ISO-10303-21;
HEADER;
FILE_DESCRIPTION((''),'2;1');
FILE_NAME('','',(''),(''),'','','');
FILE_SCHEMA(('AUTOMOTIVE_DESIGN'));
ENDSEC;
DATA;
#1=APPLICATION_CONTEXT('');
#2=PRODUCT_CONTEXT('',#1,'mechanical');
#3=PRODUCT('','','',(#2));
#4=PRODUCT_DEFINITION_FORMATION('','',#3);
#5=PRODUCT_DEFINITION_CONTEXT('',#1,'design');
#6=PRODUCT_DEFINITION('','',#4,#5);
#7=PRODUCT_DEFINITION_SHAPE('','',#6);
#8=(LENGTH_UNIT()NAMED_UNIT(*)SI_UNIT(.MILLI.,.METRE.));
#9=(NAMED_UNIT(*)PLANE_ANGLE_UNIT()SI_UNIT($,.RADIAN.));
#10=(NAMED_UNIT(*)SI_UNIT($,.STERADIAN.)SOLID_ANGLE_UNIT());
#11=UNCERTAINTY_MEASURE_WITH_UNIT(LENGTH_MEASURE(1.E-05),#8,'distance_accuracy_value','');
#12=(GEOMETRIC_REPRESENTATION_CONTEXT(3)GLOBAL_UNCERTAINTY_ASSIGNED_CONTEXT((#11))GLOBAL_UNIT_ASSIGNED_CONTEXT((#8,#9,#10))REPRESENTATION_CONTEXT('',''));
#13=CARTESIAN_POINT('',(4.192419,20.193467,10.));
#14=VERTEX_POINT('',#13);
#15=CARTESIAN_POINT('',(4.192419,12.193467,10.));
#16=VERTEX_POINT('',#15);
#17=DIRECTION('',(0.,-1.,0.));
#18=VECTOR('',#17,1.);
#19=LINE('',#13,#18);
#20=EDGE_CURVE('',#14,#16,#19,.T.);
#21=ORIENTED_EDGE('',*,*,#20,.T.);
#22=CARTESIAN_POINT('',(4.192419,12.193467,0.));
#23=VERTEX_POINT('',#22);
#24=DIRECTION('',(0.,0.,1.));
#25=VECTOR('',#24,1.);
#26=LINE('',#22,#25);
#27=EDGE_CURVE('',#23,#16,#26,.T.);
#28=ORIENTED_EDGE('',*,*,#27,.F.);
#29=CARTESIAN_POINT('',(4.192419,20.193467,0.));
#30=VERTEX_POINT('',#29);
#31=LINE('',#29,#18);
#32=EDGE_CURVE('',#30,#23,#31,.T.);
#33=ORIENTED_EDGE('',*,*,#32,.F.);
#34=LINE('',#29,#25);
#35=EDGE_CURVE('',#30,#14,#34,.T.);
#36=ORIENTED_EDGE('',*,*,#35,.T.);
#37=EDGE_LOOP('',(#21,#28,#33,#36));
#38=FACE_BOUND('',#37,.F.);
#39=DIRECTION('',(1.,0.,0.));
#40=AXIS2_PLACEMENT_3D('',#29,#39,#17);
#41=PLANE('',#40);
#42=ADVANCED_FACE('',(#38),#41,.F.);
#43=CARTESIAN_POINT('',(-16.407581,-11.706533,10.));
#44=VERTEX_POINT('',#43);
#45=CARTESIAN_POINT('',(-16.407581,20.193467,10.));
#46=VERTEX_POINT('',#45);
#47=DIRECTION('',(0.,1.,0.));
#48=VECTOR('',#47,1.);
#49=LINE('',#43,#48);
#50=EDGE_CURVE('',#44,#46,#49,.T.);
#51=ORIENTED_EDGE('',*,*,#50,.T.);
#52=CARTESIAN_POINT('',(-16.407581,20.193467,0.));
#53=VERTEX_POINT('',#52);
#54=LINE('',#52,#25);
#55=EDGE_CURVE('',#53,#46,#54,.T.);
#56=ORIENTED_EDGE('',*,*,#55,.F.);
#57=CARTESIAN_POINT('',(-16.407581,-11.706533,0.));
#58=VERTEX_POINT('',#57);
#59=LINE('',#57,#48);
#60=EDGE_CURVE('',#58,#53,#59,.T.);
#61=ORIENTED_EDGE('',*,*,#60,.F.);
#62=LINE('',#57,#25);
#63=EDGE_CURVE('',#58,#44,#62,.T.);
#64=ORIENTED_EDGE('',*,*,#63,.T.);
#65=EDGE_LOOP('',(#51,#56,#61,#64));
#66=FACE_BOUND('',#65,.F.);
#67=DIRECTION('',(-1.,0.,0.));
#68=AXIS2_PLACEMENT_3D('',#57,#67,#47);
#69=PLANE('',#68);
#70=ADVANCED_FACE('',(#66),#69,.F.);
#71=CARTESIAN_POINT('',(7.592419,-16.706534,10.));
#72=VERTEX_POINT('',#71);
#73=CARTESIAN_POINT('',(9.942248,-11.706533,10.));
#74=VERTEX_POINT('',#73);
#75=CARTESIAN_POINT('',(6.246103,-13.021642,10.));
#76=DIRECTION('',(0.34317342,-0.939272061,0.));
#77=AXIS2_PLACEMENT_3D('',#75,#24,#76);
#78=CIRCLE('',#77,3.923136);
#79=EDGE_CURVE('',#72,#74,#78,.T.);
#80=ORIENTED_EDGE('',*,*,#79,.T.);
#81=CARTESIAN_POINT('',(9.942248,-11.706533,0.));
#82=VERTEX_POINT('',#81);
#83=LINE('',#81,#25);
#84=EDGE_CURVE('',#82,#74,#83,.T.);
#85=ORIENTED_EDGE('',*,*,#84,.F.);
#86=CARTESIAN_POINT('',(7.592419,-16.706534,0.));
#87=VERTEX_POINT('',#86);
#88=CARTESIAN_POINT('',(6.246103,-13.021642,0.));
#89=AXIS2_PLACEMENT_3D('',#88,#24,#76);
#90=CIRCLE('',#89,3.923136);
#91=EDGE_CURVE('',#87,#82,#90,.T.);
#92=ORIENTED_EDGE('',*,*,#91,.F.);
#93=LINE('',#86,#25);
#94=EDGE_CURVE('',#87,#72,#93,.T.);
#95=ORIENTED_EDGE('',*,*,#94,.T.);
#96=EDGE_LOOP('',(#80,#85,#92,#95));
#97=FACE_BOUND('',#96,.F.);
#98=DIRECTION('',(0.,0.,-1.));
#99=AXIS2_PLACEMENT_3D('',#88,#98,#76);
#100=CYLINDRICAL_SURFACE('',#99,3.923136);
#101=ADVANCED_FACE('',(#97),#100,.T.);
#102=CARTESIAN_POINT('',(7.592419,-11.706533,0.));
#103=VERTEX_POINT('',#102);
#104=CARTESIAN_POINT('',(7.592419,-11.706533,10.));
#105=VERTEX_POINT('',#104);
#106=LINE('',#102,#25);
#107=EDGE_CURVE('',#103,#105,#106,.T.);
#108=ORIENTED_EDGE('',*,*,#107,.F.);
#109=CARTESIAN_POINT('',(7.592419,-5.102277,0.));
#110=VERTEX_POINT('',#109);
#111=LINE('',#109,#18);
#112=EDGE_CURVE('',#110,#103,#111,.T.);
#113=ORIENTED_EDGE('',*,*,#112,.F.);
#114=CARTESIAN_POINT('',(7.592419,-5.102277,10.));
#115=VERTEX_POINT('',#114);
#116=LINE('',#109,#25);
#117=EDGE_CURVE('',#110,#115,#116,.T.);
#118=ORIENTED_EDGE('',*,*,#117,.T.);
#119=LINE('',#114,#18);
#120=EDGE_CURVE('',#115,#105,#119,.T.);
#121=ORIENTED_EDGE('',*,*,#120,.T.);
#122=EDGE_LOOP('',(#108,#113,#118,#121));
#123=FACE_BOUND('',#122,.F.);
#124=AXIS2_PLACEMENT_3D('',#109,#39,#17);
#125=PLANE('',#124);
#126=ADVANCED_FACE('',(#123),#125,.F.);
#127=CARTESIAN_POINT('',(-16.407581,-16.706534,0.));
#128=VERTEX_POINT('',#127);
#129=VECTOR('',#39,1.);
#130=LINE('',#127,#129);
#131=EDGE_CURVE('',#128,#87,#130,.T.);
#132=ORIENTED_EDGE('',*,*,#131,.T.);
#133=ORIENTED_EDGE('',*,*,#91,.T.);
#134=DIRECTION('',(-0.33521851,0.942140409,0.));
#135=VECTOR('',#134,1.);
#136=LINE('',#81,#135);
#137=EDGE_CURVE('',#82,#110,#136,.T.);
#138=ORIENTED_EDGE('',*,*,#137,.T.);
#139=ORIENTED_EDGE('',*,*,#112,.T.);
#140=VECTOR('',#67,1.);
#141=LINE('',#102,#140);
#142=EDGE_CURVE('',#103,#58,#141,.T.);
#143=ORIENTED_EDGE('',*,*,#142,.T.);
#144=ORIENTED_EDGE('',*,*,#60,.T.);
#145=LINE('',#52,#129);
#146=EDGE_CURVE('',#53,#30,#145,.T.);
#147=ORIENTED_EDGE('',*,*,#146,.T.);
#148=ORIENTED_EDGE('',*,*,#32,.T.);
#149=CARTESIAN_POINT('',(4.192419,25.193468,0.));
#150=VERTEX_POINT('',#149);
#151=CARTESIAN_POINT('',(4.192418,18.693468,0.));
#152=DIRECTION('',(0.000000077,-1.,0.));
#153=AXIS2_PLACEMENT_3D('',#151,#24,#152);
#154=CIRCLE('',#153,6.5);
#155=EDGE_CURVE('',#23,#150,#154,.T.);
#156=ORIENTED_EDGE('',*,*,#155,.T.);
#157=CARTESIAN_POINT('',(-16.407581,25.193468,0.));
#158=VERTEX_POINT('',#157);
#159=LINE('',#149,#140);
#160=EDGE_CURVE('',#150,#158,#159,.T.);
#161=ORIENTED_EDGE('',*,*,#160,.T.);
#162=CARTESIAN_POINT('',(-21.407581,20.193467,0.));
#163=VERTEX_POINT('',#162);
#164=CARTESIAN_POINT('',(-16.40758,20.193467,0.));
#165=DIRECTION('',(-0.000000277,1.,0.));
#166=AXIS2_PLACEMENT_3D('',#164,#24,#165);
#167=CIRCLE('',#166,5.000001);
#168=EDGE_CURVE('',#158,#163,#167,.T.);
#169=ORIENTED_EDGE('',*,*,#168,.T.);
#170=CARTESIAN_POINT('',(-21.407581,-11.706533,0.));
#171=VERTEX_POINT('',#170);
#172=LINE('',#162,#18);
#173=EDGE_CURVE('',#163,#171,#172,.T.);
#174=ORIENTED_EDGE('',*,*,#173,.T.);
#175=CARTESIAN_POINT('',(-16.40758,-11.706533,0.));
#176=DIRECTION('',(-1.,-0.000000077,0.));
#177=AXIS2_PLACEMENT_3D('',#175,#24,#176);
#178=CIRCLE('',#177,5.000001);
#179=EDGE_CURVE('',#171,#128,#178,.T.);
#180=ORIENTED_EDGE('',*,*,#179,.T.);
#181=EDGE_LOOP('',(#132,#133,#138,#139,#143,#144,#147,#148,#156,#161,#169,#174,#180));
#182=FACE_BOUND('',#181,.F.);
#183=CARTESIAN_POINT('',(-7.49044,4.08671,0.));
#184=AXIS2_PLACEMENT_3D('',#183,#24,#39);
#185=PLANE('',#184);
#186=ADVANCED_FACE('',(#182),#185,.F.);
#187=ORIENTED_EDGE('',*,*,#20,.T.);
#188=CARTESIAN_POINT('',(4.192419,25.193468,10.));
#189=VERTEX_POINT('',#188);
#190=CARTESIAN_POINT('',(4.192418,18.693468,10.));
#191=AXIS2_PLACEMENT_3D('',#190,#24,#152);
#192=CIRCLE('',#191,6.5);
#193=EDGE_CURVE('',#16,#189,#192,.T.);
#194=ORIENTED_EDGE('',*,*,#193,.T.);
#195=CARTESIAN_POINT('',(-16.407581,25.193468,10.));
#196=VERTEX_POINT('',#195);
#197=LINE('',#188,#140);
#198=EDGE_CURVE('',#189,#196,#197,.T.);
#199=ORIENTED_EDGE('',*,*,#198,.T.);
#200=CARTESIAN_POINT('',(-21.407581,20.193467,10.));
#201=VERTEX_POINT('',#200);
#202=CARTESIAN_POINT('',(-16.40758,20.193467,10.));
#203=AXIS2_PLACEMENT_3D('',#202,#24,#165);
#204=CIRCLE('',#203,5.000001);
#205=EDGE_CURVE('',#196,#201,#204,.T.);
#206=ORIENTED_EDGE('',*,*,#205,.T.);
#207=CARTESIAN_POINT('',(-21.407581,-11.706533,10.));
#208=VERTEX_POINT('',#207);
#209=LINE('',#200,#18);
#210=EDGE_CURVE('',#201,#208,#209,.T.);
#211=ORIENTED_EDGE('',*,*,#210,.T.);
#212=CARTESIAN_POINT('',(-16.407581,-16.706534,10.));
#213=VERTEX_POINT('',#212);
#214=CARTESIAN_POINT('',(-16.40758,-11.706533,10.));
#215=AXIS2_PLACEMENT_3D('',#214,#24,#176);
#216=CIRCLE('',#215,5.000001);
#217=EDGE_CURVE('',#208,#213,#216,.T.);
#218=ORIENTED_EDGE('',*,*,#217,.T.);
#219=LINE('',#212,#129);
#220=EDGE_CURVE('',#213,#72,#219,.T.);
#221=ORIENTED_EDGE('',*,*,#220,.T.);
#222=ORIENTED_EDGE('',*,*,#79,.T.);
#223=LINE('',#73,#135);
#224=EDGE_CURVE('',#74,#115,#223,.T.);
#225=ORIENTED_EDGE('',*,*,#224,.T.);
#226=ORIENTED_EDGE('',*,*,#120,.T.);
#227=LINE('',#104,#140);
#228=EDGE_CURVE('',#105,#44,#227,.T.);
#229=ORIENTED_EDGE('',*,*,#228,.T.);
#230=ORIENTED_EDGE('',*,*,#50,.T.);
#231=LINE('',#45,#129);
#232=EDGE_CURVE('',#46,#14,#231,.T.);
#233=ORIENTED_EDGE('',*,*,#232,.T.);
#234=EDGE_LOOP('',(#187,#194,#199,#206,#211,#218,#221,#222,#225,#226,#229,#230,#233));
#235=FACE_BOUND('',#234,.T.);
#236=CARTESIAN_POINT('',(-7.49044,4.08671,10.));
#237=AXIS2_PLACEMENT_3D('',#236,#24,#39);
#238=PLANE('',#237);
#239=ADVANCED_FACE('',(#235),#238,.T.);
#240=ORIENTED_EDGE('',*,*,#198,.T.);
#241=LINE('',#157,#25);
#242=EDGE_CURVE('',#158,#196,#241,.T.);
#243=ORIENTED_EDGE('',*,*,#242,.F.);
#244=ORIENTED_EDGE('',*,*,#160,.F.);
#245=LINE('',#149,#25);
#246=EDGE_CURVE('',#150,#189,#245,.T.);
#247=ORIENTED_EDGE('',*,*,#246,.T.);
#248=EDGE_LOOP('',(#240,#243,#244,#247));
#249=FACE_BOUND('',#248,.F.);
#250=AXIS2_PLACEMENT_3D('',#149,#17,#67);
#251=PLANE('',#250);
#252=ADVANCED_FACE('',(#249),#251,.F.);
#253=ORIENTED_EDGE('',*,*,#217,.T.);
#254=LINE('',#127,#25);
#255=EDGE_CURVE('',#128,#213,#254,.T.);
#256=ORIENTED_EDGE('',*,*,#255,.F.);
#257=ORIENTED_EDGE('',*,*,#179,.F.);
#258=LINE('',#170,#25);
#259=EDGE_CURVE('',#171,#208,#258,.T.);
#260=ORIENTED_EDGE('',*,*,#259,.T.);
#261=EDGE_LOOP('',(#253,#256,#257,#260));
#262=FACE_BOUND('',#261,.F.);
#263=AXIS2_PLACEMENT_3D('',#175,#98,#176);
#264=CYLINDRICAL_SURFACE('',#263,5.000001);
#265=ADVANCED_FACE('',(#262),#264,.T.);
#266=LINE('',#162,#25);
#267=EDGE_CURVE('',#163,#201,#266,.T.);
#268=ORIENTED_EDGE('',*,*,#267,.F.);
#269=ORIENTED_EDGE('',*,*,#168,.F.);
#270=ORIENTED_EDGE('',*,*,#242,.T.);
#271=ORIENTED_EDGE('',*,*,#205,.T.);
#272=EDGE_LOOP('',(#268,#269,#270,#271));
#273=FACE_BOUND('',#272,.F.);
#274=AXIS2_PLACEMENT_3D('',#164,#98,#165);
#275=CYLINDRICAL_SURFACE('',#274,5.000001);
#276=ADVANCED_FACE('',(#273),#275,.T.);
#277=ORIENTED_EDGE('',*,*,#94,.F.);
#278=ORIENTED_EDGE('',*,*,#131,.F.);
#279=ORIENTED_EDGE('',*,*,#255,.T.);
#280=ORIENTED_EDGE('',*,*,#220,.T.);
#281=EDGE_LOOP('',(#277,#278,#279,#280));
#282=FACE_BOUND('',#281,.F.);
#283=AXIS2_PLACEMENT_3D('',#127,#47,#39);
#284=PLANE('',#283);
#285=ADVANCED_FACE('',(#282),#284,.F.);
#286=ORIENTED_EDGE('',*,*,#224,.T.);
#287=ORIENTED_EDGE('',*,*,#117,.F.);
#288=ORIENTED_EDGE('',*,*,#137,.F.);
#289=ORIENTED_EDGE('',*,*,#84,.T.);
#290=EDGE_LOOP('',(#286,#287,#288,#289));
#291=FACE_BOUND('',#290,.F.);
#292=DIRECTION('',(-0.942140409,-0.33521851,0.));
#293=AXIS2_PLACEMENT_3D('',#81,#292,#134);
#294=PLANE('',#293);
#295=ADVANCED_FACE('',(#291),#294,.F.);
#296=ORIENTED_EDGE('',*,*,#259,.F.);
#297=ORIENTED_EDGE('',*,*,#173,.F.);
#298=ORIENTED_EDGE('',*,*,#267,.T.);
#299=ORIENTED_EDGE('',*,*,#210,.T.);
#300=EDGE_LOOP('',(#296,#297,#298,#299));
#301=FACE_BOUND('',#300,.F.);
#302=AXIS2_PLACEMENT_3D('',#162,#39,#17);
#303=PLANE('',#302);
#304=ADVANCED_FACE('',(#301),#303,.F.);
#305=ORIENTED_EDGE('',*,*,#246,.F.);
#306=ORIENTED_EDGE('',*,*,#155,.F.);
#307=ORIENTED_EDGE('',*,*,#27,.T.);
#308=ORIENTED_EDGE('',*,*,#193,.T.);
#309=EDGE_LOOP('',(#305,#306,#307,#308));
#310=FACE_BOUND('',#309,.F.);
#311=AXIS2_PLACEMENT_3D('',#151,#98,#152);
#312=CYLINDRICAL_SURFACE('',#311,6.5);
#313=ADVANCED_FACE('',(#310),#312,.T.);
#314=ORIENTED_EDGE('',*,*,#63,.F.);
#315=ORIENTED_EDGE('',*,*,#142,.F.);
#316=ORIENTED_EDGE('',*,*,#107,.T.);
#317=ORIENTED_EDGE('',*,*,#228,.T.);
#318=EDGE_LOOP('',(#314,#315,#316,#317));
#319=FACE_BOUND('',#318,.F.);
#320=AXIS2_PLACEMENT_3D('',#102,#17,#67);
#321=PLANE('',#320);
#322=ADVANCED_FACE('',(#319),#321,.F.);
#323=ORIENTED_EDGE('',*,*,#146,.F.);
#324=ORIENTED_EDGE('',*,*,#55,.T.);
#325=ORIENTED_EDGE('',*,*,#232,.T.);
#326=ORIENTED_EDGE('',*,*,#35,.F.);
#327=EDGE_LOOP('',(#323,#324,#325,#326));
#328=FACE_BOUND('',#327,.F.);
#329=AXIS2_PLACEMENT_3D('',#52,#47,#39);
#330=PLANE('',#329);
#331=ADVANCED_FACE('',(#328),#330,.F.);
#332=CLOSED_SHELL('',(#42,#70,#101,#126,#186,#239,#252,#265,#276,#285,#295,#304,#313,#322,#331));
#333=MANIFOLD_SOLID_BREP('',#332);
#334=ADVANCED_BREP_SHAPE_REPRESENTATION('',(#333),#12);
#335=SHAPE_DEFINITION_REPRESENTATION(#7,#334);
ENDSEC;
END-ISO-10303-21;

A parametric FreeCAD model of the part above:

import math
import FreeCAD as App
import Part
import Sketcher
from FreeCAD import Vector

doc = App.newDocument("Part")
body = doc.addObject("PartDesign::Body", "Body")

sketch1 = body.newObject("Sketcher::SketchObject", "Sketch")
sketch1.AttachmentSupport = (doc.getObject("XY_Plane"), [""])
sketch1.MapMode = "FlatFace"
sketch1.addGeometry([
    Part.LineSegment(Vector(-16.4, 20.2, 0), Vector(4.2, 20.2, 0)),
    Part.LineSegment(Vector(4.2, 20.2, 0), Vector(4.2, 12.2, 0)),
    Part.ArcOfCircle(Part.Circle(Vector(4.2, 18.7, 0), Vector(0, 0, 1), 6.5), math.radians(-90), math.radians(90)),
    Part.LineSegment(Vector(4.2, 25.2, 0), Vector(-16.4, 25.2, 0)),
    Part.ArcOfCircle(Part.Circle(Vector(-16.4, 20.2, 0), Vector(0, 0, 1), 5), math.radians(90), math.radians(180)),
    Part.LineSegment(Vector(-21.4, 20.2, 0), Vector(-21.4, -11.7, 0)),
    Part.ArcOfCircle(Part.Circle(Vector(-16.4, -11.7, 0), Vector(0, 0, 1), 5), math.radians(-180), math.radians(-90)),
    Part.LineSegment(Vector(-16.4, -16.7, 0), Vector(7.6, -16.7, 0)),
    Part.ArcOfCircle(Part.Circle(Vector(6.2, -13, 0), Vector(0, 0, 1), 3.9), math.radians(-70), math.radians(20)),
    Part.LineSegment(Vector(9.9, -11.7, 0), Vector(7.6, -5.1, 0)),
    Part.LineSegment(Vector(7.6, -5.1, 0), Vector(7.6, -11.7, 0)),
    Part.LineSegment(Vector(7.6, -11.7, 0), Vector(-16.4, -11.7, 0)),
    Part.LineSegment(Vector(-16.4, -11.7, 0), Vector(-16.4, 20.2, 0)),
], False)
sketch1.addConstraint([
    Sketcher.Constraint("Coincident", 0, 2, 1, 1),
    Sketcher.Constraint("Coincident", 1, 2, 2, 1),
    Sketcher.Constraint("Tangent", 2, 2, 3, 1),
    Sketcher.Constraint("Tangent", 3, 2, 4, 1),
    Sketcher.Constraint("Tangent", 4, 2, 5, 1),
    Sketcher.Constraint("Tangent", 5, 2, 6, 1),
    Sketcher.Constraint("Tangent", 6, 2, 7, 1),
    Sketcher.Constraint("Coincident", 7, 2, 8, 1),
    Sketcher.Constraint("Tangent", 8, 2, 9, 1),
    Sketcher.Constraint("Coincident", 9, 2, 10, 1),
    Sketcher.Constraint("Coincident", 10, 2, 11, 1),
    Sketcher.Constraint("Coincident", 11, 2, 12, 1),
    Sketcher.Constraint("Coincident", 12, 2, 0, 1),
    Sketcher.Constraint("Horizontal", 0),
    Sketcher.Constraint("Vertical", 1),
    Sketcher.Constraint("Horizontal", 3),
    Sketcher.Constraint("Vertical", 5),
    Sketcher.Constraint("Horizontal", 7),
    Sketcher.Constraint("Vertical", 10),
    Sketcher.Constraint("Horizontal", 11),
    Sketcher.Constraint("Vertical", 12),
    Sketcher.Constraint("Coincident", 11, 2, 6, 3),
    Sketcher.Constraint("Coincident", 12, 2, 4, 3),
    Sketcher.Constraint("Horizontal", 5, 2, 8, 2),
    Sketcher.Constraint("Vertical", 2, 3, 0, 2),
    Sketcher.Constraint("Vertical", 7, 2, 9, 2),
    Sketcher.Constraint("Radius", 4, 5.000001),
    Sketcher.Constraint("Radius", 2, 6.5),
    Sketcher.Constraint("DistanceX", 7, 1, 7, 2, 24.0),
    Sketcher.Constraint("DistanceX", 0, 1, 0, 2, 20.6),
    Sketcher.Constraint("DistanceY", 5, 2, 5, 1, 31.9),
    Sketcher.Constraint("Radius", 8, 3.923136),
    Sketcher.Constraint("DistanceY", 10, 2, 10, 1, 6.604256),
    Sketcher.Constraint("DistanceX", -1, 1, 2, 3, 4.192418),
    Sketcher.Constraint("DistanceY", 8, 3, -1, 1, 13.021642),
])
pad1 = body.newObject("PartDesign::Pad", "Pad")
pad1.Profile = sketch1
pad1.Length = 10

doc.recompute()
